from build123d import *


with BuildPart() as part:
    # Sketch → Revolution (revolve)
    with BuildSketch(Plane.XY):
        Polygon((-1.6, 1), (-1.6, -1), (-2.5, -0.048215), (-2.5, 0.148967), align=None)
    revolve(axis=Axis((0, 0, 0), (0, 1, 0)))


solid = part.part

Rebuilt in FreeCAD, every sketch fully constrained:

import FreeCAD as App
import Part
import Sketcher
from FreeCAD import Vector


def add_polygon(sketch, points):
    """Adds a closed chain of lines whose ends are joined by coincident constraints."""
    first, n = sketch.GeometryCount, len(points)
    for a, b in zip(points, points[1:] + points[:1]):
        sketch.addGeometry(Part.LineSegment(App.Vector(*a, 0), App.Vector(*b, 0)), False)
    for i in range(n):
        sketch.addConstraint(Sketcher.Constraint("Coincident", first + i, 2, first + (i + 1) % n, 1))

doc = App.newDocument("Part")
body = doc.addObject("PartDesign::Body", "Body")

sketch1 = body.newObject("Sketcher::SketchObject", "Sketch")
sketch1.AttachmentSupport = (doc.getObject("XY_Plane"), [""])
sketch1.MapMode = "FlatFace"
add_polygon(sketch1, [(-1.6, -1), (-1.6, 1), (-2.5, 0.148967), (-2.5, -0.048215)])
sketch1.addConstraint([
    Sketcher.Constraint("Vertical", 0),
    Sketcher.Constraint("Vertical", 2),
    Sketcher.Constraint("Perpendicular", 1, 3),
    Sketcher.Constraint("DistanceY", 0, 1, 0, 2, 2.0),
    Sketcher.Constraint("DistanceY", -1, 1, 0, 2, 1.0),
    Sketcher.Constraint("DistanceX", 0, 2, -1, 1, 1.6),
    Sketcher.Constraint("DistanceX", 1, 2, -1, 1, 2.5),
    Sketcher.Constraint("Distance", 1, 1.238651),
])
revolution = body.newObject("PartDesign::Revolution", "Revolution")
revolution.Profile = sketch1
revolution.ReferenceAxis = (sketch1, ["V_Axis"])
revolution.Angle = 360

doc.recompute()
